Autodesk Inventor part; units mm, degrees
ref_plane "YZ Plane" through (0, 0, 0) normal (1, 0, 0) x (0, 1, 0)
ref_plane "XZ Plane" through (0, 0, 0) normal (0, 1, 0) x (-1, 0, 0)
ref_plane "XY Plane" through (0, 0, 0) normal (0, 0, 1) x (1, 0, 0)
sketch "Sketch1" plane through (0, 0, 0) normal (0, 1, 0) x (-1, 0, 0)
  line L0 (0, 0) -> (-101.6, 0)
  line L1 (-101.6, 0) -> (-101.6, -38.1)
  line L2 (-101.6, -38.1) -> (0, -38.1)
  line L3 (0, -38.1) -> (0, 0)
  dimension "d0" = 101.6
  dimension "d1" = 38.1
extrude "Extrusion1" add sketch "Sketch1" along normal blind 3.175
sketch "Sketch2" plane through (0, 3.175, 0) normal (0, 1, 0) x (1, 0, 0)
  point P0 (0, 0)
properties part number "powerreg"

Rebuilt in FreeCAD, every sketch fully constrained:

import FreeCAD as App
import Part
import Sketcher
Q = App.Units.Quantity

doc = App.newDocument("Part")
body = doc.addObject("PartDesign::Body", "Body")

sketch1 = body.newObject("Sketcher::SketchObject", "Sketch")
sketch1.AttachmentSupport = (doc.getObject("XZ_Plane"), [""])
sketch1.MapMode = "FlatFace"
sketch1.addGeometry([
    Part.LineSegment(App.Vector(0, -38, 0), App.Vector(0, 0, 0)),
    Part.LineSegment(App.Vector(0, 0, 0), App.Vector(102, 0, 0)),
    Part.LineSegment(App.Vector(102, 0, 0), App.Vector(102, -38, 0)),
    Part.LineSegment(App.Vector(102, -38, 0), App.Vector(0, -38, 0)),
], False)
sketch1.addConstraint([
    Sketcher.Constraint("Coincident", 0, 2, 1, 1),
    Sketcher.Constraint("Coincident", 1, 2, 2, 1),
    Sketcher.Constraint("Coincident", 2, 2, 3, 1),
    Sketcher.Constraint("Coincident", 3, 2, 0, 1),
    Sketcher.Constraint("Vertical", 0),
    Sketcher.Constraint("Horizontal", 1),
    Sketcher.Constraint("Vertical", 2),
    Sketcher.Constraint("Horizontal", 3),
    Sketcher.Constraint("Coincident", 0, 2, -1, 1),
    Sketcher.Constraint("DistanceX", 1, 1, 1, 2, Q("4 in")),
    Sketcher.Constraint("DistanceY", 0, 1, 0, 2, Q("1.5 in")),
])
pad1 = body.newObject("PartDesign::Pad", "Pad")
pad1.Profile = sketch1
pad1.Length = Q("0.125 in")
pad1.Reversed = True

doc.recompute()
